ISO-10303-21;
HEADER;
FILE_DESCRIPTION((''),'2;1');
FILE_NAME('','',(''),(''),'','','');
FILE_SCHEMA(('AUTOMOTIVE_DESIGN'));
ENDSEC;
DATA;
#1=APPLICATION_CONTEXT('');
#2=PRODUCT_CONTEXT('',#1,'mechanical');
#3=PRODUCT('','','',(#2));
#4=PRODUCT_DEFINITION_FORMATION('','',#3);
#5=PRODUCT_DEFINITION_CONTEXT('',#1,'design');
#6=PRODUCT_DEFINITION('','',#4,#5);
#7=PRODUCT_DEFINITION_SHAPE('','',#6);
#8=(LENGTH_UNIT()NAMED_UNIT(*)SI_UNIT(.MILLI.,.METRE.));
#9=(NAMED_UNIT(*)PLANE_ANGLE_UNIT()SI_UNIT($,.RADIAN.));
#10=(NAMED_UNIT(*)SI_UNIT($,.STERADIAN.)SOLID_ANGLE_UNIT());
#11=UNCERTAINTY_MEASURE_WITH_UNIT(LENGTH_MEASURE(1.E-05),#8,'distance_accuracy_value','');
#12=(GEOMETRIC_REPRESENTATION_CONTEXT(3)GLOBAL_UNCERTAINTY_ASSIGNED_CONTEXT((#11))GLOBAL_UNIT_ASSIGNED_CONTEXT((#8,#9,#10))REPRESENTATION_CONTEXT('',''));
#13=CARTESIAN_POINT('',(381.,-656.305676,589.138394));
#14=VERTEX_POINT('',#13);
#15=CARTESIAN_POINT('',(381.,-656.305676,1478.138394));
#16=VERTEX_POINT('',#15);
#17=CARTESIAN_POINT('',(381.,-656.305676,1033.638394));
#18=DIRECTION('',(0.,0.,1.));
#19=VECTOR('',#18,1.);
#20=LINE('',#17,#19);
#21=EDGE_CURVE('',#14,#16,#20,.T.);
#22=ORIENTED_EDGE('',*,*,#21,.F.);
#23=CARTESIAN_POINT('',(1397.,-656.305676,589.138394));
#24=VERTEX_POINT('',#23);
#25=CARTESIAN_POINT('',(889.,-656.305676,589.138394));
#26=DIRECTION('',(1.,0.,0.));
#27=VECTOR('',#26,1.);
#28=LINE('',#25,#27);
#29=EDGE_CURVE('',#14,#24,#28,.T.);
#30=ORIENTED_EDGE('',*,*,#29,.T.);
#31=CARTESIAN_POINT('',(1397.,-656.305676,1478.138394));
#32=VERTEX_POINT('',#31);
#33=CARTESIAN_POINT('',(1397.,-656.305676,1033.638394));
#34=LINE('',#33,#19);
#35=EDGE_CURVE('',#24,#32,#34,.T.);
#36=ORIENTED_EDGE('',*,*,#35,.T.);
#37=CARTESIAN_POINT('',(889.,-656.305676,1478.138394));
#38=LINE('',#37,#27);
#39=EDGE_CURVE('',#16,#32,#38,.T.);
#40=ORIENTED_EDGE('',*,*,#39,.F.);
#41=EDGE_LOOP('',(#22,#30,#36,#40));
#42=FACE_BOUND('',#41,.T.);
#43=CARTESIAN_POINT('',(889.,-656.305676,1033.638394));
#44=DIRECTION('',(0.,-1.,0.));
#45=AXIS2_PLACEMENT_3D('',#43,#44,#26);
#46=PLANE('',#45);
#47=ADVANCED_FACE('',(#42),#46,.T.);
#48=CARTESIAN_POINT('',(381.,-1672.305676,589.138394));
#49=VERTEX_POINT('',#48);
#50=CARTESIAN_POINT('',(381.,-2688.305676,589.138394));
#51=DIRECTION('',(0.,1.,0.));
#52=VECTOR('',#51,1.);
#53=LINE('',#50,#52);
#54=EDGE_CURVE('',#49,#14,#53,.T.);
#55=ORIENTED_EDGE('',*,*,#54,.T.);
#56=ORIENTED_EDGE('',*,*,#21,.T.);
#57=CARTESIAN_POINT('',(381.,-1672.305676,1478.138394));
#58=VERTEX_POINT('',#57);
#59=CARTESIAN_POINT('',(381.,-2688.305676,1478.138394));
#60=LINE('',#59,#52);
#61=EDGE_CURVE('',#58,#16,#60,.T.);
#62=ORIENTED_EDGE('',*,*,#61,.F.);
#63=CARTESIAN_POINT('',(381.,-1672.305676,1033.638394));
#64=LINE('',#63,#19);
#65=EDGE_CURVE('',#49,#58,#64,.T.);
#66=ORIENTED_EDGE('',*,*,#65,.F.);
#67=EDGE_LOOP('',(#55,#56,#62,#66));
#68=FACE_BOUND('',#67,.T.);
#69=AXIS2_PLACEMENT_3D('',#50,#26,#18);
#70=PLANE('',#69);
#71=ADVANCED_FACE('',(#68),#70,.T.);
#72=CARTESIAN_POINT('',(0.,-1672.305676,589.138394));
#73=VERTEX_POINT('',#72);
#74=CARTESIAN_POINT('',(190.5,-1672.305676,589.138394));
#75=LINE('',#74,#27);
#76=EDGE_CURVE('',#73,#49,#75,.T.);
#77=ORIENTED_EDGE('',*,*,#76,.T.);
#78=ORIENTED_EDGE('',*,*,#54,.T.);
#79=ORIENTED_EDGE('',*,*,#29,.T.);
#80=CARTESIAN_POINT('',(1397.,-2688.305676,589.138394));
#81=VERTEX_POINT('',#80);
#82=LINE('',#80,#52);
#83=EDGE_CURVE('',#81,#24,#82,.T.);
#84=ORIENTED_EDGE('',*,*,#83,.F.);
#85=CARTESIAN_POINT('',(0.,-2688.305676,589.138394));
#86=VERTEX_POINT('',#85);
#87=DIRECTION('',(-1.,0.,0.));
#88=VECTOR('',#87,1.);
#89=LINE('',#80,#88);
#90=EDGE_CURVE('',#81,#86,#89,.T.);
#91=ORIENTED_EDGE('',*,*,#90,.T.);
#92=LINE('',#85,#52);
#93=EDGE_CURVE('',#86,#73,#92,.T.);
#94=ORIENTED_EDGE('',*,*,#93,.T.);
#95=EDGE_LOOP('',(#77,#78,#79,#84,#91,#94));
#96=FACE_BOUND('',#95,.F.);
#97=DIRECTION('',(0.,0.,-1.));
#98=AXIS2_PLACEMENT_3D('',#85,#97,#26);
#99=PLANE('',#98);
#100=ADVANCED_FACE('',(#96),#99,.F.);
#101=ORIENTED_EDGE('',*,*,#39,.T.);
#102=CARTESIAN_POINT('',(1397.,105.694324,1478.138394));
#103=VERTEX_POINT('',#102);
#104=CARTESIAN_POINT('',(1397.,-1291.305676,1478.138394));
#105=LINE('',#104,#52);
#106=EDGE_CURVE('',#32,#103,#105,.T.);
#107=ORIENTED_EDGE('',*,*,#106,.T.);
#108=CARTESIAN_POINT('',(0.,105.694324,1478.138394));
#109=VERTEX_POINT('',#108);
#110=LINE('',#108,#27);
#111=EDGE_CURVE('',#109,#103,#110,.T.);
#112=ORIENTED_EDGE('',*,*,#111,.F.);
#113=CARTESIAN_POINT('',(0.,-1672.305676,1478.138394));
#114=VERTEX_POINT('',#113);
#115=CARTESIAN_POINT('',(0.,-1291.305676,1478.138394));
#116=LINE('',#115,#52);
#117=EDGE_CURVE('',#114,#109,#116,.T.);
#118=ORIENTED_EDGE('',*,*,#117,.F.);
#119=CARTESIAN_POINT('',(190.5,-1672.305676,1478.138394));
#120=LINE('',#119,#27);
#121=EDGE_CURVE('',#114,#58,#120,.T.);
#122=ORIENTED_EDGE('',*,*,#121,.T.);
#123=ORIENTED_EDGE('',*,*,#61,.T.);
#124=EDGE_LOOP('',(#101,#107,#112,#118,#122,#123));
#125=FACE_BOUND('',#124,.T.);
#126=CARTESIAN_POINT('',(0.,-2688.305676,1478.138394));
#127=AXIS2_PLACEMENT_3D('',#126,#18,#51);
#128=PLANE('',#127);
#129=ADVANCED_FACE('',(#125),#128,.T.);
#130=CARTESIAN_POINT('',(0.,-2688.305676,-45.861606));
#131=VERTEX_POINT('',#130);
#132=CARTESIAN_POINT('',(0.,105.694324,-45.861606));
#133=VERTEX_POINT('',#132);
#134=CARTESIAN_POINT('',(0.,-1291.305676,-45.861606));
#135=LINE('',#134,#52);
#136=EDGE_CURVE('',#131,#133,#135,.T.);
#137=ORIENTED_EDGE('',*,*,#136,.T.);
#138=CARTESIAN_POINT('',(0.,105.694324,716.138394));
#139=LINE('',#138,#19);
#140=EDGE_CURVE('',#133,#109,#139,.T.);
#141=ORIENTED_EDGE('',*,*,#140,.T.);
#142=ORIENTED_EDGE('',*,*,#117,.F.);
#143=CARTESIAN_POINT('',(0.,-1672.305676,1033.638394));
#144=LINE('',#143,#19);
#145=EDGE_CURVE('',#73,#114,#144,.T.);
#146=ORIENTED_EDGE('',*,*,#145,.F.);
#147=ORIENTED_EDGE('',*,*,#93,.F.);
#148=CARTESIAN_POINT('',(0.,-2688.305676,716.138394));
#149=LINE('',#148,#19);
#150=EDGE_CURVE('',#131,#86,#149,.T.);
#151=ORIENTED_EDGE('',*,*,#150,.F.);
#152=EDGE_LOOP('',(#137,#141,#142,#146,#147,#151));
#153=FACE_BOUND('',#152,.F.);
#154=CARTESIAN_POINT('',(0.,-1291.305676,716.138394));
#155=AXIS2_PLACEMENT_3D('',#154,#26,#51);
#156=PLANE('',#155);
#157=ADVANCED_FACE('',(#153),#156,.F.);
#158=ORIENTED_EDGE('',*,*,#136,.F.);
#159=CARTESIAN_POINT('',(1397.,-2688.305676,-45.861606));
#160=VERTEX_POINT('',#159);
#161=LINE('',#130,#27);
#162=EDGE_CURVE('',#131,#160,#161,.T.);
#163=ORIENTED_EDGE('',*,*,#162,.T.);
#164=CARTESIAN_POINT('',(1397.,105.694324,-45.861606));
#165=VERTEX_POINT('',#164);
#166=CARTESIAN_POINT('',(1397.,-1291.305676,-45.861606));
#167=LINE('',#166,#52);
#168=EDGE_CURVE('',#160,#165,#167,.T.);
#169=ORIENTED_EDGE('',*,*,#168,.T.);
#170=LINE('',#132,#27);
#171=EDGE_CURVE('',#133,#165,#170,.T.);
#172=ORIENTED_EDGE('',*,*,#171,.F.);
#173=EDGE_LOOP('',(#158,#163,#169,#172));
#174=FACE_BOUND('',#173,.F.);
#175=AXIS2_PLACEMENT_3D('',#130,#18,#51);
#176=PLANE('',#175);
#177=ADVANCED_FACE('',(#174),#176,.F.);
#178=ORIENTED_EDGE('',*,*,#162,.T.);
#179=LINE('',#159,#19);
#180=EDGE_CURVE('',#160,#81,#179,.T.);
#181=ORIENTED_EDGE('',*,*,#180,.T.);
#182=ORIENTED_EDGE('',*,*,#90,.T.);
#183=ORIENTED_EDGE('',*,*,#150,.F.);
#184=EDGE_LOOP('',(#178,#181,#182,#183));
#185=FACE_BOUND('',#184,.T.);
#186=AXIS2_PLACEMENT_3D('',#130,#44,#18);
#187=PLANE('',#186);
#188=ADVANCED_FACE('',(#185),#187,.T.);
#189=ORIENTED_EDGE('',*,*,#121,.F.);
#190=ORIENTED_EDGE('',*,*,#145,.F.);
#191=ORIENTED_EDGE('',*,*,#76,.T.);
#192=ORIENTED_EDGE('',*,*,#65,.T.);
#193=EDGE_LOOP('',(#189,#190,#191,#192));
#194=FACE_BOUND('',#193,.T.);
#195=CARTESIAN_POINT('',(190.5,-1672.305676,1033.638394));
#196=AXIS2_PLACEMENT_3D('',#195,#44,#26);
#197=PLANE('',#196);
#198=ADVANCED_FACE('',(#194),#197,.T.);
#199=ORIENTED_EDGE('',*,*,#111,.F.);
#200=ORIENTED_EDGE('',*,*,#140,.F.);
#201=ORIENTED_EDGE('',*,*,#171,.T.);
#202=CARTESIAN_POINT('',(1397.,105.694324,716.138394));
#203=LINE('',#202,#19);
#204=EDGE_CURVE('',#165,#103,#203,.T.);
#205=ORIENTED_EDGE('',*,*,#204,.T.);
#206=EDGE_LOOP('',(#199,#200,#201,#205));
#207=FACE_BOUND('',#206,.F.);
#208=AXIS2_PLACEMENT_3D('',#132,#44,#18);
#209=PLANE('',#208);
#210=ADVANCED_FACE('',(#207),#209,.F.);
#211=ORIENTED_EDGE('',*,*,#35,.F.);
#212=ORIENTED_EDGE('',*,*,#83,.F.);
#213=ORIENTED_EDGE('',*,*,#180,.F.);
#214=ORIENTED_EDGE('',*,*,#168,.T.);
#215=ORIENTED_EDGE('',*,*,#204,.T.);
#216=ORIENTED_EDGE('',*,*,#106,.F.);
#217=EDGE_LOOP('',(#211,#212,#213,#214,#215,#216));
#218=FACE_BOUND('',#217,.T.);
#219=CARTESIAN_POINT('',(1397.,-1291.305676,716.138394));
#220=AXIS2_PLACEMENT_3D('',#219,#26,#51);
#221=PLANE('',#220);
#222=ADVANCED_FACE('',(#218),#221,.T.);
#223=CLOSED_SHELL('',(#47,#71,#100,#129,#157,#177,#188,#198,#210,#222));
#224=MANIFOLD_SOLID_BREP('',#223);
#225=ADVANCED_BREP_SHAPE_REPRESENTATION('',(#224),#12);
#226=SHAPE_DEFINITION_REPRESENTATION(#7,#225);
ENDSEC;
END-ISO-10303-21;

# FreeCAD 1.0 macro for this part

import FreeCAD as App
import Part
import Sketcher
Q = App.Units.Quantity


def add_polygon(sketch, points):
    """Adds a closed chain of lines whose ends are joined by coincident constraints."""
    first, n = sketch.GeometryCount, len(points)
    for a, b in zip(points, points[1:] + points[:1]):
        sketch.addGeometry(Part.LineSegment(App.Vector(*a, 0), App.Vector(*b, 0)), False)
    for i in range(n):
        sketch.addConstraint(Sketcher.Constraint("Coincident", first + i, 2, first + (i + 1) % n, 1))

doc = App.newDocument("Part")
params = doc.addObject("Spreadsheet::Sheet", "Params")
for row, (alias, value) in enumerate([
    ("sketch1_width", "110 in"),
    ("sketch1_height", "60 in"),
    ("pad1_length", "55 in"),
    ("sketch2_width", "15 in"),
    ("sketch2_height", "35 in"),
    ("pocket1_length", "40 in"),
    ("sketch3_width", "40 in"),
    ("sketch3_height", "35 in"),
    ("pocket2_length", "0.1 in"),
    ("sketch4_width", "40 in"),
    ("sketch4_height", "35 in"),
    ("pocket3_length", "80 in"),
], start=1):
    params.set(f"A{row}", alias)
    params.set(f"B{row}", "=" + value)
    params.setAlias(f"B{row}", alias)

body = doc.addObject("PartDesign::Body", "Body")

# Sketch on YZ plane
sketch1 = body.newObject("Sketcher::SketchObject", "Sketch")
sketch1.AttachmentSupport = (doc.getObject("YZ_Plane"), [""])
sketch1.MapMode = "FlatFace"
add_polygon(sketch1, [(-2688, 1478), (-2688, -46), (106, -46), (106, 1478)])  # lines 0-3
sketch1.addConstraint([
    Sketcher.Constraint("Vertical", 0),
    Sketcher.Constraint("Horizontal", 1),
    Sketcher.Constraint("Vertical", 2),
    Sketcher.Constraint("Horizontal", 3),
    Sketcher.Constraint("DistanceX", 1, 1, 1, 2, Q("110 in")),
    Sketcher.Constraint("DistanceY", 0, 2, 0, 1, Q("60 in")),
    Sketcher.Constraint("DistanceX", 0, 2, -1, 1, 2688.305676),
    Sketcher.Constraint("DistanceY", 0, 2, -1, 1, 45.861606),
])
sketch1.setExpression("Constraints[8]", "Params.sketch1_width")
sketch1.setExpression("Constraints[9]", "Params.sketch1_height")
pad1 = body.newObject("PartDesign::Pad", "Pad")
pad1.Profile = sketch1
pad1.setExpression("Length", "Params.pad1_length")

# Sketch on XZ plane
sketch2 = body.newObject("Sketcher::SketchObject", "Sketch001")
sketch2.AttachmentSupport = (doc.getObject("XZ_Plane"), [""])
sketch2.MapMode = "FlatFace"
sketch2.AttachmentOffset = App.Placement(App.Vector(0, 0, 2688.305676), App.Rotation())
add_polygon(sketch2, [(0, 1478), (0, 589), (381, 589), (381, 1478)])  # lines 0-3
sketch2.addConstraint([
    Sketcher.Constraint("Vertical", 0),
    Sketcher.Constraint("Horizontal", 1),
    Sketcher.Constraint("Vertical", 2),
    Sketcher.Constraint("Horizontal", 3),
    Sketcher.Constraint("PointOnObject", 0, 2, -2),
    Sketcher.Constraint("DistanceX", 1, 1, 1, 2, Q("15 in")),
    Sketcher.Constraint("DistanceY", 0, 2, 0, 1, Q("35 in")),
    Sketcher.Constraint("DistanceY", -1, 1, 0, 2, 589.138394),
])
sketch2.setExpression("Constraints[9]", "Params.sketch2_width")
sketch2.setExpression("Constraints[10]", "Params.sketch2_height")
pocket1 = body.newObject("PartDesign::Pocket", "Pocket")
pocket1.Profile = sketch2
pocket1.setExpression("Length", "Params.pocket1_length")

# Sketch on XZ plane
sketch3 = body.newObject("Sketcher::SketchObject", "Sketch002")
sketch3.AttachmentSupport = (doc.getObject("XZ_Plane"), [""])
sketch3.MapMode = "FlatFace"
sketch3.AttachmentOffset = App.Placement(App.Vector(0, 0, 2688.305676), App.Rotation())
add_polygon(sketch3, [(381, 1478), (381, 589), (1397, 589), (1397, 1478)])  # lines 0-3
sketch3.addConstraint([
    Sketcher.Constraint("Vertical", 0),
    Sketcher.Constraint("Horizontal", 1),
    Sketcher.Constraint("Vertical", 2),
    Sketcher.Constraint("Horizontal", 3),
    Sketcher.Constraint("DistanceX", 1, 1, 1, 2, Q("40 in")),
    Sketcher.Constraint("DistanceY", 0, 2, 0, 1, Q("35 in")),
    Sketcher.Constraint("DistanceX", -1, 1, 0, 2, Q("15 in")),
    Sketcher.Constraint("DistanceY", -1, 1, 0, 2, 589.138394),
])
sketch3.setExpression("Constraints[8]", "Params.sketch3_width")
sketch3.setExpression("Constraints[9]", "Params.sketch3_height")
pocket2 = body.newObject("PartDesign::Pocket", "Pocket001")
pocket2.Profile = sketch3
pocket2.setExpression("Length", "Params.pocket2_length")
pocket2.Reversed = True

# Sketch on XZ plane
sketch4 = body.newObject("Sketcher::SketchObject", "Sketch003")
sketch4.AttachmentSupport = (doc.getObject("XZ_Plane"), [""])
sketch4.MapMode = "FlatFace"
sketch4.AttachmentOffset = App.Placement(App.Vector(0, 0, 2688.305676), App.Rotation())
add_polygon(sketch4, [(381, 1478), (381, 589), (1397, 589), (1397, 1478)])  # lines 0-3
sketch4.addConstraint([
    Sketcher.Constraint("Vertical", 0),
    Sketcher.Constraint("Horizontal", 1),
    Sketcher.Constraint("Vertical", 2),
    Sketcher.Constraint("Horizontal", 3),
    Sketcher.Constraint("DistanceX", 1, 1, 1, 2, Q("40 in")),
    Sketcher.Constraint("DistanceY", 0, 2, 0, 1, Q("35 in")),
    Sketcher.Constraint("DistanceX", -1, 1, 0, 2, Q("15 in")),
    Sketcher.Constraint("DistanceY", -1, 1, 0, 2, 589.138394),
])
sketch4.setExpression("Constraints[8]", "Params.sketch4_width")
sketch4.setExpression("Constraints[9]", "Params.sketch4_height")
pocket3 = body.newObject("PartDesign::Pocket", "Pocket002")
pocket3.Profile = sketch4
pocket3.setExpression("Length", "Params.pocket3_length")

doc.recompute()
